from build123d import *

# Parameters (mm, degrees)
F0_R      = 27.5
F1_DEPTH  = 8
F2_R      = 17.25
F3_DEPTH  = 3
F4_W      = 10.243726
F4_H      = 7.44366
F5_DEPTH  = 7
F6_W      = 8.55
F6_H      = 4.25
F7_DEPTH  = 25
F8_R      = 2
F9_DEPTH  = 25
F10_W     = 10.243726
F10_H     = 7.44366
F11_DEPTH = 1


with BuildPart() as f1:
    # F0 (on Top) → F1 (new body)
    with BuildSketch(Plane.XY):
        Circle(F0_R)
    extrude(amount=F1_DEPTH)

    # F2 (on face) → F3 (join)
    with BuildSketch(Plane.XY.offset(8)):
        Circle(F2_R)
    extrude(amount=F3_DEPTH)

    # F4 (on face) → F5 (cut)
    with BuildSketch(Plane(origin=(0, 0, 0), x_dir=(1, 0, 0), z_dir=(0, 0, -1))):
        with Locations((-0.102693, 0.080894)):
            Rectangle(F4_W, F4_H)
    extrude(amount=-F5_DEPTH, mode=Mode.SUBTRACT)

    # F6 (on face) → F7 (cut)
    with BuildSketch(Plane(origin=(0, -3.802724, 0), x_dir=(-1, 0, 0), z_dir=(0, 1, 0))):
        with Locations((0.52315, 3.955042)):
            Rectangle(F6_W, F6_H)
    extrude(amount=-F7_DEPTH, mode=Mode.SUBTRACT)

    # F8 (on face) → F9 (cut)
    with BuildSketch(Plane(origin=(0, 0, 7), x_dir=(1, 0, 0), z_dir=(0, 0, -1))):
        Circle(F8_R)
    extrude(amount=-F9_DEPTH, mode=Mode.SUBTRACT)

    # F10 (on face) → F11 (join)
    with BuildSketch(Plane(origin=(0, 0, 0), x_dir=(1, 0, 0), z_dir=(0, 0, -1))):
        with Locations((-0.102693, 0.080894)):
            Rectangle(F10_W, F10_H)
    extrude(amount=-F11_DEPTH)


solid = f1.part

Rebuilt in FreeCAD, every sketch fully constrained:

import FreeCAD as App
import Part
import Sketcher

V = App.Vector
Q = App.Units.Quantity

doc = App.newDocument("Part")
body = doc.addObject("PartDesign::Body", "Body")

# Sketch on XY plane
sketch1 = body.newObject("Sketcher::SketchObject", "Sketch")
sketch1.AttachmentSupport = (doc.getObject("XY_Plane"), [""])
sketch1.MapMode = "FlatFace"
sketch1.addGeometry(Part.Circle(V(0, 0, 0), V(0, 0, 1), 28), False)
sketch1.addConstraint([
    Sketcher.Constraint("Coincident", 0, 3, -1, 1),
    Sketcher.Constraint("Diameter", 0, Q("55 mm")),
])
pad1 = body.newObject("PartDesign::Pad", "Pad")
pad1.Profile = sketch1
pad1.Length = 8

# Sketch on XY plane
sketch2 = body.newObject("Sketcher::SketchObject", "Sketch001")
sketch2.AttachmentSupport = (doc.getObject("XY_Plane"), [""])
sketch2.MapMode = "FlatFace"
sketch2.AttachmentOffset = App.Placement(V(0, 0, 8), App.Rotation())
sketch2.addGeometry(Part.Circle(V(0, 0, 0), V(0, 0, 1), 17), False)
sketch2.addConstraint([
    Sketcher.Constraint("Coincident", 0, 3, -1, 1),
    Sketcher.Constraint("Diameter", 0, Q("34.5 mm")),
])
pad2 = body.newObject("PartDesign::Pad", "Pad001")
pad2.Profile = sketch2
pad2.Length = 3

# Sketch on XY plane
sketch3 = body.newObject("Sketcher::SketchObject", "Sketch002")
sketch3.AttachmentSupport = (doc.getObject("XY_Plane"), [""])
sketch3.MapMode = "FlatFace"
sketch3.addGeometry([
    Part.LineSegment(V(-5, -4, 0), V(-5, 4, 0)),
    Part.LineSegment(V(-5, 4, 0), V(5, 4, 0)),
    Part.LineSegment(V(5, 4, 0), V(5, -4, 0)),
    Part.LineSegment(V(5, -4, 0), V(-5, -4, 0)),
], False)
sketch3.addConstraint([
    Sketcher.Constraint("Coincident", 0, 2, 1, 1),
    Sketcher.Constraint("Coincident", 1, 2, 2, 1),
    Sketcher.Constraint("Coincident", 2, 2, 3, 1),
    Sketcher.Constraint("Coincident", 3, 2, 0, 1),
    Sketcher.Constraint("Vertical", 0),
    Sketcher.Constraint("Horizontal", 1),
    Sketcher.Constraint("Vertical", 2),
    Sketcher.Constraint("Horizontal", 3),
    Sketcher.Constraint("DistanceY", 0, 1, 0, 2, Q("7.44366 mm")),
    Sketcher.Constraint("DistanceX", 1, 1, 1, 2, Q("10.243726 mm")),
    Sketcher.Constraint("DistanceX", -1, 1, 1, 2, Q("5.01917 mm")),
    Sketcher.Constraint("DistanceY", -1, 1, 0, 2, Q("3.640936 mm")),
])
pocket1 = body.newObject("PartDesign::Pocket", "Pocket")
pocket1.Profile = sketch3
pocket1.Length = 7
pocket1.Reversed = True

# Sketch on XZ plane
sketch4 = body.newObject("Sketcher::SketchObject", "Sketch003")
sketch4.AttachmentSupport = (doc.getObject("XZ_Plane"), [""])
sketch4.MapMode = "FlatFace"
sketch4.AttachmentOffset = App.Placement(V(0, 0, 3.802724), App.Rotation())
sketch4.addGeometry([
    Part.LineSegment(V(3.8, 6.1, 0), V(3.8, 1.8, 0)),
    Part.LineSegment(V(3.8, 1.8, 0), V(-4.8, 1.8, 0)),
    Part.LineSegment(V(-4.8, 1.8, 0), V(-4.8, 6.1, 0)),
    Part.LineSegment(V(-4.8, 6.1, 0), V(3.8, 6.1, 0)),
], False)
sketch4.addConstraint([
    Sketcher.Constraint("Coincident", 0, 2, 1, 1),
    Sketcher.Constraint("Coincident", 1, 2, 2, 1),
    Sketcher.Constraint("Coincident", 2, 2, 3, 1),
    Sketcher.Constraint("Coincident", 3, 2, 0, 1),
    Sketcher.Constraint("Vertical", 0),
    Sketcher.Constraint("Horizontal", 1),
    Sketcher.Constraint("Vertical", 2),
    Sketcher.Constraint("Horizontal", 3),
    Sketcher.Constraint("DistanceX", 1, 2, 1, 1, Q("8.55 mm")),
    Sketcher.Constraint("DistanceY", 0, 2, 0, 1, Q("4.25 mm")),
    Sketcher.Constraint("DistanceX", -1, 1, 0, 2, Q("3.75185 mm")),
    Sketcher.Constraint("DistanceY", -1, 1, 2, 2, Q("6.080042 mm")),
])
pocket2 = body.newObject("PartDesign::Pocket", "Pocket001")
pocket2.Profile = sketch4
pocket2.Length = 25
pocket2.Reversed = True

# Sketch on XY plane
sketch5 = body.newObject("Sketcher::SketchObject", "Sketch004")
sketch5.AttachmentSupport = (doc.getObject("XY_Plane"), [""])
sketch5.MapMode = "FlatFace"
sketch5.AttachmentOffset = App.Placement(V(0, 0, 7), App.Rotation())
sketch5.addGeometry(Part.Circle(V(0, 0, 0), V(0, 0, 1), 2), False)
sketch5.addConstraint([
    Sketcher.Constraint("Coincident", 0, 3, -1, 1),
    Sketcher.Constraint("Diameter", 0, Q("4 mm")),
])
pocket3 = body.newObject("PartDesign::Pocket", "Pocket002")
pocket3.Profile = sketch5
pocket3.Length = 25
pocket3.Reversed = True

# Sketch on XY plane
sketch6 = body.newObject("Sketcher::SketchObject", "Sketch005")
sketch6.AttachmentSupport = (doc.getObject("XY_Plane"), [""])
sketch6.MapMode = "FlatFace"
sketch6.addGeometry([
    Part.LineSegment(V(-5, -4, 0), V(-5, 4, 0)),
    Part.LineSegment(V(-5, 4, 0), V(5, 4, 0)),
    Part.LineSegment(V(5, 4, 0), V(5, -4, 0)),
    Part.LineSegment(V(5, -4, 0), V(-5, -4, 0)),
], False)
sketch6.addConstraint([
    Sketcher.Constraint("Coincident", 0, 2, 1, 1),
    Sketcher.Constraint("Coincident", 1, 2, 2, 1),
    Sketcher.Constraint("Coincident", 2, 2, 3, 1),
    Sketcher.Constraint("Coincident", 3, 2, 0, 1),
    Sketcher.Constraint("Vertical", 0),
    Sketcher.Constraint("Horizontal", 1),
    Sketcher.Constraint("Vertical", 2),
    Sketcher.Constraint("Horizontal", 3),
    Sketcher.Constraint("DistanceY", 0, 1, 0, 2, Q("7.44366 mm")),
    Sketcher.Constraint("DistanceX", 1, 1, 1, 2, Q("10.243726 mm")),
    Sketcher.Constraint("DistanceX", -1, 1, 1, 2, Q("5.01917 mm")),
    Sketcher.Constraint("DistanceY", -1, 1, 0, 2, Q("3.640936 mm")),
])
pad3 = body.newObject("PartDesign::Pad", "Pad002")
pad3.Profile = sketch6
pad3.Length = 1

doc.recompute()
